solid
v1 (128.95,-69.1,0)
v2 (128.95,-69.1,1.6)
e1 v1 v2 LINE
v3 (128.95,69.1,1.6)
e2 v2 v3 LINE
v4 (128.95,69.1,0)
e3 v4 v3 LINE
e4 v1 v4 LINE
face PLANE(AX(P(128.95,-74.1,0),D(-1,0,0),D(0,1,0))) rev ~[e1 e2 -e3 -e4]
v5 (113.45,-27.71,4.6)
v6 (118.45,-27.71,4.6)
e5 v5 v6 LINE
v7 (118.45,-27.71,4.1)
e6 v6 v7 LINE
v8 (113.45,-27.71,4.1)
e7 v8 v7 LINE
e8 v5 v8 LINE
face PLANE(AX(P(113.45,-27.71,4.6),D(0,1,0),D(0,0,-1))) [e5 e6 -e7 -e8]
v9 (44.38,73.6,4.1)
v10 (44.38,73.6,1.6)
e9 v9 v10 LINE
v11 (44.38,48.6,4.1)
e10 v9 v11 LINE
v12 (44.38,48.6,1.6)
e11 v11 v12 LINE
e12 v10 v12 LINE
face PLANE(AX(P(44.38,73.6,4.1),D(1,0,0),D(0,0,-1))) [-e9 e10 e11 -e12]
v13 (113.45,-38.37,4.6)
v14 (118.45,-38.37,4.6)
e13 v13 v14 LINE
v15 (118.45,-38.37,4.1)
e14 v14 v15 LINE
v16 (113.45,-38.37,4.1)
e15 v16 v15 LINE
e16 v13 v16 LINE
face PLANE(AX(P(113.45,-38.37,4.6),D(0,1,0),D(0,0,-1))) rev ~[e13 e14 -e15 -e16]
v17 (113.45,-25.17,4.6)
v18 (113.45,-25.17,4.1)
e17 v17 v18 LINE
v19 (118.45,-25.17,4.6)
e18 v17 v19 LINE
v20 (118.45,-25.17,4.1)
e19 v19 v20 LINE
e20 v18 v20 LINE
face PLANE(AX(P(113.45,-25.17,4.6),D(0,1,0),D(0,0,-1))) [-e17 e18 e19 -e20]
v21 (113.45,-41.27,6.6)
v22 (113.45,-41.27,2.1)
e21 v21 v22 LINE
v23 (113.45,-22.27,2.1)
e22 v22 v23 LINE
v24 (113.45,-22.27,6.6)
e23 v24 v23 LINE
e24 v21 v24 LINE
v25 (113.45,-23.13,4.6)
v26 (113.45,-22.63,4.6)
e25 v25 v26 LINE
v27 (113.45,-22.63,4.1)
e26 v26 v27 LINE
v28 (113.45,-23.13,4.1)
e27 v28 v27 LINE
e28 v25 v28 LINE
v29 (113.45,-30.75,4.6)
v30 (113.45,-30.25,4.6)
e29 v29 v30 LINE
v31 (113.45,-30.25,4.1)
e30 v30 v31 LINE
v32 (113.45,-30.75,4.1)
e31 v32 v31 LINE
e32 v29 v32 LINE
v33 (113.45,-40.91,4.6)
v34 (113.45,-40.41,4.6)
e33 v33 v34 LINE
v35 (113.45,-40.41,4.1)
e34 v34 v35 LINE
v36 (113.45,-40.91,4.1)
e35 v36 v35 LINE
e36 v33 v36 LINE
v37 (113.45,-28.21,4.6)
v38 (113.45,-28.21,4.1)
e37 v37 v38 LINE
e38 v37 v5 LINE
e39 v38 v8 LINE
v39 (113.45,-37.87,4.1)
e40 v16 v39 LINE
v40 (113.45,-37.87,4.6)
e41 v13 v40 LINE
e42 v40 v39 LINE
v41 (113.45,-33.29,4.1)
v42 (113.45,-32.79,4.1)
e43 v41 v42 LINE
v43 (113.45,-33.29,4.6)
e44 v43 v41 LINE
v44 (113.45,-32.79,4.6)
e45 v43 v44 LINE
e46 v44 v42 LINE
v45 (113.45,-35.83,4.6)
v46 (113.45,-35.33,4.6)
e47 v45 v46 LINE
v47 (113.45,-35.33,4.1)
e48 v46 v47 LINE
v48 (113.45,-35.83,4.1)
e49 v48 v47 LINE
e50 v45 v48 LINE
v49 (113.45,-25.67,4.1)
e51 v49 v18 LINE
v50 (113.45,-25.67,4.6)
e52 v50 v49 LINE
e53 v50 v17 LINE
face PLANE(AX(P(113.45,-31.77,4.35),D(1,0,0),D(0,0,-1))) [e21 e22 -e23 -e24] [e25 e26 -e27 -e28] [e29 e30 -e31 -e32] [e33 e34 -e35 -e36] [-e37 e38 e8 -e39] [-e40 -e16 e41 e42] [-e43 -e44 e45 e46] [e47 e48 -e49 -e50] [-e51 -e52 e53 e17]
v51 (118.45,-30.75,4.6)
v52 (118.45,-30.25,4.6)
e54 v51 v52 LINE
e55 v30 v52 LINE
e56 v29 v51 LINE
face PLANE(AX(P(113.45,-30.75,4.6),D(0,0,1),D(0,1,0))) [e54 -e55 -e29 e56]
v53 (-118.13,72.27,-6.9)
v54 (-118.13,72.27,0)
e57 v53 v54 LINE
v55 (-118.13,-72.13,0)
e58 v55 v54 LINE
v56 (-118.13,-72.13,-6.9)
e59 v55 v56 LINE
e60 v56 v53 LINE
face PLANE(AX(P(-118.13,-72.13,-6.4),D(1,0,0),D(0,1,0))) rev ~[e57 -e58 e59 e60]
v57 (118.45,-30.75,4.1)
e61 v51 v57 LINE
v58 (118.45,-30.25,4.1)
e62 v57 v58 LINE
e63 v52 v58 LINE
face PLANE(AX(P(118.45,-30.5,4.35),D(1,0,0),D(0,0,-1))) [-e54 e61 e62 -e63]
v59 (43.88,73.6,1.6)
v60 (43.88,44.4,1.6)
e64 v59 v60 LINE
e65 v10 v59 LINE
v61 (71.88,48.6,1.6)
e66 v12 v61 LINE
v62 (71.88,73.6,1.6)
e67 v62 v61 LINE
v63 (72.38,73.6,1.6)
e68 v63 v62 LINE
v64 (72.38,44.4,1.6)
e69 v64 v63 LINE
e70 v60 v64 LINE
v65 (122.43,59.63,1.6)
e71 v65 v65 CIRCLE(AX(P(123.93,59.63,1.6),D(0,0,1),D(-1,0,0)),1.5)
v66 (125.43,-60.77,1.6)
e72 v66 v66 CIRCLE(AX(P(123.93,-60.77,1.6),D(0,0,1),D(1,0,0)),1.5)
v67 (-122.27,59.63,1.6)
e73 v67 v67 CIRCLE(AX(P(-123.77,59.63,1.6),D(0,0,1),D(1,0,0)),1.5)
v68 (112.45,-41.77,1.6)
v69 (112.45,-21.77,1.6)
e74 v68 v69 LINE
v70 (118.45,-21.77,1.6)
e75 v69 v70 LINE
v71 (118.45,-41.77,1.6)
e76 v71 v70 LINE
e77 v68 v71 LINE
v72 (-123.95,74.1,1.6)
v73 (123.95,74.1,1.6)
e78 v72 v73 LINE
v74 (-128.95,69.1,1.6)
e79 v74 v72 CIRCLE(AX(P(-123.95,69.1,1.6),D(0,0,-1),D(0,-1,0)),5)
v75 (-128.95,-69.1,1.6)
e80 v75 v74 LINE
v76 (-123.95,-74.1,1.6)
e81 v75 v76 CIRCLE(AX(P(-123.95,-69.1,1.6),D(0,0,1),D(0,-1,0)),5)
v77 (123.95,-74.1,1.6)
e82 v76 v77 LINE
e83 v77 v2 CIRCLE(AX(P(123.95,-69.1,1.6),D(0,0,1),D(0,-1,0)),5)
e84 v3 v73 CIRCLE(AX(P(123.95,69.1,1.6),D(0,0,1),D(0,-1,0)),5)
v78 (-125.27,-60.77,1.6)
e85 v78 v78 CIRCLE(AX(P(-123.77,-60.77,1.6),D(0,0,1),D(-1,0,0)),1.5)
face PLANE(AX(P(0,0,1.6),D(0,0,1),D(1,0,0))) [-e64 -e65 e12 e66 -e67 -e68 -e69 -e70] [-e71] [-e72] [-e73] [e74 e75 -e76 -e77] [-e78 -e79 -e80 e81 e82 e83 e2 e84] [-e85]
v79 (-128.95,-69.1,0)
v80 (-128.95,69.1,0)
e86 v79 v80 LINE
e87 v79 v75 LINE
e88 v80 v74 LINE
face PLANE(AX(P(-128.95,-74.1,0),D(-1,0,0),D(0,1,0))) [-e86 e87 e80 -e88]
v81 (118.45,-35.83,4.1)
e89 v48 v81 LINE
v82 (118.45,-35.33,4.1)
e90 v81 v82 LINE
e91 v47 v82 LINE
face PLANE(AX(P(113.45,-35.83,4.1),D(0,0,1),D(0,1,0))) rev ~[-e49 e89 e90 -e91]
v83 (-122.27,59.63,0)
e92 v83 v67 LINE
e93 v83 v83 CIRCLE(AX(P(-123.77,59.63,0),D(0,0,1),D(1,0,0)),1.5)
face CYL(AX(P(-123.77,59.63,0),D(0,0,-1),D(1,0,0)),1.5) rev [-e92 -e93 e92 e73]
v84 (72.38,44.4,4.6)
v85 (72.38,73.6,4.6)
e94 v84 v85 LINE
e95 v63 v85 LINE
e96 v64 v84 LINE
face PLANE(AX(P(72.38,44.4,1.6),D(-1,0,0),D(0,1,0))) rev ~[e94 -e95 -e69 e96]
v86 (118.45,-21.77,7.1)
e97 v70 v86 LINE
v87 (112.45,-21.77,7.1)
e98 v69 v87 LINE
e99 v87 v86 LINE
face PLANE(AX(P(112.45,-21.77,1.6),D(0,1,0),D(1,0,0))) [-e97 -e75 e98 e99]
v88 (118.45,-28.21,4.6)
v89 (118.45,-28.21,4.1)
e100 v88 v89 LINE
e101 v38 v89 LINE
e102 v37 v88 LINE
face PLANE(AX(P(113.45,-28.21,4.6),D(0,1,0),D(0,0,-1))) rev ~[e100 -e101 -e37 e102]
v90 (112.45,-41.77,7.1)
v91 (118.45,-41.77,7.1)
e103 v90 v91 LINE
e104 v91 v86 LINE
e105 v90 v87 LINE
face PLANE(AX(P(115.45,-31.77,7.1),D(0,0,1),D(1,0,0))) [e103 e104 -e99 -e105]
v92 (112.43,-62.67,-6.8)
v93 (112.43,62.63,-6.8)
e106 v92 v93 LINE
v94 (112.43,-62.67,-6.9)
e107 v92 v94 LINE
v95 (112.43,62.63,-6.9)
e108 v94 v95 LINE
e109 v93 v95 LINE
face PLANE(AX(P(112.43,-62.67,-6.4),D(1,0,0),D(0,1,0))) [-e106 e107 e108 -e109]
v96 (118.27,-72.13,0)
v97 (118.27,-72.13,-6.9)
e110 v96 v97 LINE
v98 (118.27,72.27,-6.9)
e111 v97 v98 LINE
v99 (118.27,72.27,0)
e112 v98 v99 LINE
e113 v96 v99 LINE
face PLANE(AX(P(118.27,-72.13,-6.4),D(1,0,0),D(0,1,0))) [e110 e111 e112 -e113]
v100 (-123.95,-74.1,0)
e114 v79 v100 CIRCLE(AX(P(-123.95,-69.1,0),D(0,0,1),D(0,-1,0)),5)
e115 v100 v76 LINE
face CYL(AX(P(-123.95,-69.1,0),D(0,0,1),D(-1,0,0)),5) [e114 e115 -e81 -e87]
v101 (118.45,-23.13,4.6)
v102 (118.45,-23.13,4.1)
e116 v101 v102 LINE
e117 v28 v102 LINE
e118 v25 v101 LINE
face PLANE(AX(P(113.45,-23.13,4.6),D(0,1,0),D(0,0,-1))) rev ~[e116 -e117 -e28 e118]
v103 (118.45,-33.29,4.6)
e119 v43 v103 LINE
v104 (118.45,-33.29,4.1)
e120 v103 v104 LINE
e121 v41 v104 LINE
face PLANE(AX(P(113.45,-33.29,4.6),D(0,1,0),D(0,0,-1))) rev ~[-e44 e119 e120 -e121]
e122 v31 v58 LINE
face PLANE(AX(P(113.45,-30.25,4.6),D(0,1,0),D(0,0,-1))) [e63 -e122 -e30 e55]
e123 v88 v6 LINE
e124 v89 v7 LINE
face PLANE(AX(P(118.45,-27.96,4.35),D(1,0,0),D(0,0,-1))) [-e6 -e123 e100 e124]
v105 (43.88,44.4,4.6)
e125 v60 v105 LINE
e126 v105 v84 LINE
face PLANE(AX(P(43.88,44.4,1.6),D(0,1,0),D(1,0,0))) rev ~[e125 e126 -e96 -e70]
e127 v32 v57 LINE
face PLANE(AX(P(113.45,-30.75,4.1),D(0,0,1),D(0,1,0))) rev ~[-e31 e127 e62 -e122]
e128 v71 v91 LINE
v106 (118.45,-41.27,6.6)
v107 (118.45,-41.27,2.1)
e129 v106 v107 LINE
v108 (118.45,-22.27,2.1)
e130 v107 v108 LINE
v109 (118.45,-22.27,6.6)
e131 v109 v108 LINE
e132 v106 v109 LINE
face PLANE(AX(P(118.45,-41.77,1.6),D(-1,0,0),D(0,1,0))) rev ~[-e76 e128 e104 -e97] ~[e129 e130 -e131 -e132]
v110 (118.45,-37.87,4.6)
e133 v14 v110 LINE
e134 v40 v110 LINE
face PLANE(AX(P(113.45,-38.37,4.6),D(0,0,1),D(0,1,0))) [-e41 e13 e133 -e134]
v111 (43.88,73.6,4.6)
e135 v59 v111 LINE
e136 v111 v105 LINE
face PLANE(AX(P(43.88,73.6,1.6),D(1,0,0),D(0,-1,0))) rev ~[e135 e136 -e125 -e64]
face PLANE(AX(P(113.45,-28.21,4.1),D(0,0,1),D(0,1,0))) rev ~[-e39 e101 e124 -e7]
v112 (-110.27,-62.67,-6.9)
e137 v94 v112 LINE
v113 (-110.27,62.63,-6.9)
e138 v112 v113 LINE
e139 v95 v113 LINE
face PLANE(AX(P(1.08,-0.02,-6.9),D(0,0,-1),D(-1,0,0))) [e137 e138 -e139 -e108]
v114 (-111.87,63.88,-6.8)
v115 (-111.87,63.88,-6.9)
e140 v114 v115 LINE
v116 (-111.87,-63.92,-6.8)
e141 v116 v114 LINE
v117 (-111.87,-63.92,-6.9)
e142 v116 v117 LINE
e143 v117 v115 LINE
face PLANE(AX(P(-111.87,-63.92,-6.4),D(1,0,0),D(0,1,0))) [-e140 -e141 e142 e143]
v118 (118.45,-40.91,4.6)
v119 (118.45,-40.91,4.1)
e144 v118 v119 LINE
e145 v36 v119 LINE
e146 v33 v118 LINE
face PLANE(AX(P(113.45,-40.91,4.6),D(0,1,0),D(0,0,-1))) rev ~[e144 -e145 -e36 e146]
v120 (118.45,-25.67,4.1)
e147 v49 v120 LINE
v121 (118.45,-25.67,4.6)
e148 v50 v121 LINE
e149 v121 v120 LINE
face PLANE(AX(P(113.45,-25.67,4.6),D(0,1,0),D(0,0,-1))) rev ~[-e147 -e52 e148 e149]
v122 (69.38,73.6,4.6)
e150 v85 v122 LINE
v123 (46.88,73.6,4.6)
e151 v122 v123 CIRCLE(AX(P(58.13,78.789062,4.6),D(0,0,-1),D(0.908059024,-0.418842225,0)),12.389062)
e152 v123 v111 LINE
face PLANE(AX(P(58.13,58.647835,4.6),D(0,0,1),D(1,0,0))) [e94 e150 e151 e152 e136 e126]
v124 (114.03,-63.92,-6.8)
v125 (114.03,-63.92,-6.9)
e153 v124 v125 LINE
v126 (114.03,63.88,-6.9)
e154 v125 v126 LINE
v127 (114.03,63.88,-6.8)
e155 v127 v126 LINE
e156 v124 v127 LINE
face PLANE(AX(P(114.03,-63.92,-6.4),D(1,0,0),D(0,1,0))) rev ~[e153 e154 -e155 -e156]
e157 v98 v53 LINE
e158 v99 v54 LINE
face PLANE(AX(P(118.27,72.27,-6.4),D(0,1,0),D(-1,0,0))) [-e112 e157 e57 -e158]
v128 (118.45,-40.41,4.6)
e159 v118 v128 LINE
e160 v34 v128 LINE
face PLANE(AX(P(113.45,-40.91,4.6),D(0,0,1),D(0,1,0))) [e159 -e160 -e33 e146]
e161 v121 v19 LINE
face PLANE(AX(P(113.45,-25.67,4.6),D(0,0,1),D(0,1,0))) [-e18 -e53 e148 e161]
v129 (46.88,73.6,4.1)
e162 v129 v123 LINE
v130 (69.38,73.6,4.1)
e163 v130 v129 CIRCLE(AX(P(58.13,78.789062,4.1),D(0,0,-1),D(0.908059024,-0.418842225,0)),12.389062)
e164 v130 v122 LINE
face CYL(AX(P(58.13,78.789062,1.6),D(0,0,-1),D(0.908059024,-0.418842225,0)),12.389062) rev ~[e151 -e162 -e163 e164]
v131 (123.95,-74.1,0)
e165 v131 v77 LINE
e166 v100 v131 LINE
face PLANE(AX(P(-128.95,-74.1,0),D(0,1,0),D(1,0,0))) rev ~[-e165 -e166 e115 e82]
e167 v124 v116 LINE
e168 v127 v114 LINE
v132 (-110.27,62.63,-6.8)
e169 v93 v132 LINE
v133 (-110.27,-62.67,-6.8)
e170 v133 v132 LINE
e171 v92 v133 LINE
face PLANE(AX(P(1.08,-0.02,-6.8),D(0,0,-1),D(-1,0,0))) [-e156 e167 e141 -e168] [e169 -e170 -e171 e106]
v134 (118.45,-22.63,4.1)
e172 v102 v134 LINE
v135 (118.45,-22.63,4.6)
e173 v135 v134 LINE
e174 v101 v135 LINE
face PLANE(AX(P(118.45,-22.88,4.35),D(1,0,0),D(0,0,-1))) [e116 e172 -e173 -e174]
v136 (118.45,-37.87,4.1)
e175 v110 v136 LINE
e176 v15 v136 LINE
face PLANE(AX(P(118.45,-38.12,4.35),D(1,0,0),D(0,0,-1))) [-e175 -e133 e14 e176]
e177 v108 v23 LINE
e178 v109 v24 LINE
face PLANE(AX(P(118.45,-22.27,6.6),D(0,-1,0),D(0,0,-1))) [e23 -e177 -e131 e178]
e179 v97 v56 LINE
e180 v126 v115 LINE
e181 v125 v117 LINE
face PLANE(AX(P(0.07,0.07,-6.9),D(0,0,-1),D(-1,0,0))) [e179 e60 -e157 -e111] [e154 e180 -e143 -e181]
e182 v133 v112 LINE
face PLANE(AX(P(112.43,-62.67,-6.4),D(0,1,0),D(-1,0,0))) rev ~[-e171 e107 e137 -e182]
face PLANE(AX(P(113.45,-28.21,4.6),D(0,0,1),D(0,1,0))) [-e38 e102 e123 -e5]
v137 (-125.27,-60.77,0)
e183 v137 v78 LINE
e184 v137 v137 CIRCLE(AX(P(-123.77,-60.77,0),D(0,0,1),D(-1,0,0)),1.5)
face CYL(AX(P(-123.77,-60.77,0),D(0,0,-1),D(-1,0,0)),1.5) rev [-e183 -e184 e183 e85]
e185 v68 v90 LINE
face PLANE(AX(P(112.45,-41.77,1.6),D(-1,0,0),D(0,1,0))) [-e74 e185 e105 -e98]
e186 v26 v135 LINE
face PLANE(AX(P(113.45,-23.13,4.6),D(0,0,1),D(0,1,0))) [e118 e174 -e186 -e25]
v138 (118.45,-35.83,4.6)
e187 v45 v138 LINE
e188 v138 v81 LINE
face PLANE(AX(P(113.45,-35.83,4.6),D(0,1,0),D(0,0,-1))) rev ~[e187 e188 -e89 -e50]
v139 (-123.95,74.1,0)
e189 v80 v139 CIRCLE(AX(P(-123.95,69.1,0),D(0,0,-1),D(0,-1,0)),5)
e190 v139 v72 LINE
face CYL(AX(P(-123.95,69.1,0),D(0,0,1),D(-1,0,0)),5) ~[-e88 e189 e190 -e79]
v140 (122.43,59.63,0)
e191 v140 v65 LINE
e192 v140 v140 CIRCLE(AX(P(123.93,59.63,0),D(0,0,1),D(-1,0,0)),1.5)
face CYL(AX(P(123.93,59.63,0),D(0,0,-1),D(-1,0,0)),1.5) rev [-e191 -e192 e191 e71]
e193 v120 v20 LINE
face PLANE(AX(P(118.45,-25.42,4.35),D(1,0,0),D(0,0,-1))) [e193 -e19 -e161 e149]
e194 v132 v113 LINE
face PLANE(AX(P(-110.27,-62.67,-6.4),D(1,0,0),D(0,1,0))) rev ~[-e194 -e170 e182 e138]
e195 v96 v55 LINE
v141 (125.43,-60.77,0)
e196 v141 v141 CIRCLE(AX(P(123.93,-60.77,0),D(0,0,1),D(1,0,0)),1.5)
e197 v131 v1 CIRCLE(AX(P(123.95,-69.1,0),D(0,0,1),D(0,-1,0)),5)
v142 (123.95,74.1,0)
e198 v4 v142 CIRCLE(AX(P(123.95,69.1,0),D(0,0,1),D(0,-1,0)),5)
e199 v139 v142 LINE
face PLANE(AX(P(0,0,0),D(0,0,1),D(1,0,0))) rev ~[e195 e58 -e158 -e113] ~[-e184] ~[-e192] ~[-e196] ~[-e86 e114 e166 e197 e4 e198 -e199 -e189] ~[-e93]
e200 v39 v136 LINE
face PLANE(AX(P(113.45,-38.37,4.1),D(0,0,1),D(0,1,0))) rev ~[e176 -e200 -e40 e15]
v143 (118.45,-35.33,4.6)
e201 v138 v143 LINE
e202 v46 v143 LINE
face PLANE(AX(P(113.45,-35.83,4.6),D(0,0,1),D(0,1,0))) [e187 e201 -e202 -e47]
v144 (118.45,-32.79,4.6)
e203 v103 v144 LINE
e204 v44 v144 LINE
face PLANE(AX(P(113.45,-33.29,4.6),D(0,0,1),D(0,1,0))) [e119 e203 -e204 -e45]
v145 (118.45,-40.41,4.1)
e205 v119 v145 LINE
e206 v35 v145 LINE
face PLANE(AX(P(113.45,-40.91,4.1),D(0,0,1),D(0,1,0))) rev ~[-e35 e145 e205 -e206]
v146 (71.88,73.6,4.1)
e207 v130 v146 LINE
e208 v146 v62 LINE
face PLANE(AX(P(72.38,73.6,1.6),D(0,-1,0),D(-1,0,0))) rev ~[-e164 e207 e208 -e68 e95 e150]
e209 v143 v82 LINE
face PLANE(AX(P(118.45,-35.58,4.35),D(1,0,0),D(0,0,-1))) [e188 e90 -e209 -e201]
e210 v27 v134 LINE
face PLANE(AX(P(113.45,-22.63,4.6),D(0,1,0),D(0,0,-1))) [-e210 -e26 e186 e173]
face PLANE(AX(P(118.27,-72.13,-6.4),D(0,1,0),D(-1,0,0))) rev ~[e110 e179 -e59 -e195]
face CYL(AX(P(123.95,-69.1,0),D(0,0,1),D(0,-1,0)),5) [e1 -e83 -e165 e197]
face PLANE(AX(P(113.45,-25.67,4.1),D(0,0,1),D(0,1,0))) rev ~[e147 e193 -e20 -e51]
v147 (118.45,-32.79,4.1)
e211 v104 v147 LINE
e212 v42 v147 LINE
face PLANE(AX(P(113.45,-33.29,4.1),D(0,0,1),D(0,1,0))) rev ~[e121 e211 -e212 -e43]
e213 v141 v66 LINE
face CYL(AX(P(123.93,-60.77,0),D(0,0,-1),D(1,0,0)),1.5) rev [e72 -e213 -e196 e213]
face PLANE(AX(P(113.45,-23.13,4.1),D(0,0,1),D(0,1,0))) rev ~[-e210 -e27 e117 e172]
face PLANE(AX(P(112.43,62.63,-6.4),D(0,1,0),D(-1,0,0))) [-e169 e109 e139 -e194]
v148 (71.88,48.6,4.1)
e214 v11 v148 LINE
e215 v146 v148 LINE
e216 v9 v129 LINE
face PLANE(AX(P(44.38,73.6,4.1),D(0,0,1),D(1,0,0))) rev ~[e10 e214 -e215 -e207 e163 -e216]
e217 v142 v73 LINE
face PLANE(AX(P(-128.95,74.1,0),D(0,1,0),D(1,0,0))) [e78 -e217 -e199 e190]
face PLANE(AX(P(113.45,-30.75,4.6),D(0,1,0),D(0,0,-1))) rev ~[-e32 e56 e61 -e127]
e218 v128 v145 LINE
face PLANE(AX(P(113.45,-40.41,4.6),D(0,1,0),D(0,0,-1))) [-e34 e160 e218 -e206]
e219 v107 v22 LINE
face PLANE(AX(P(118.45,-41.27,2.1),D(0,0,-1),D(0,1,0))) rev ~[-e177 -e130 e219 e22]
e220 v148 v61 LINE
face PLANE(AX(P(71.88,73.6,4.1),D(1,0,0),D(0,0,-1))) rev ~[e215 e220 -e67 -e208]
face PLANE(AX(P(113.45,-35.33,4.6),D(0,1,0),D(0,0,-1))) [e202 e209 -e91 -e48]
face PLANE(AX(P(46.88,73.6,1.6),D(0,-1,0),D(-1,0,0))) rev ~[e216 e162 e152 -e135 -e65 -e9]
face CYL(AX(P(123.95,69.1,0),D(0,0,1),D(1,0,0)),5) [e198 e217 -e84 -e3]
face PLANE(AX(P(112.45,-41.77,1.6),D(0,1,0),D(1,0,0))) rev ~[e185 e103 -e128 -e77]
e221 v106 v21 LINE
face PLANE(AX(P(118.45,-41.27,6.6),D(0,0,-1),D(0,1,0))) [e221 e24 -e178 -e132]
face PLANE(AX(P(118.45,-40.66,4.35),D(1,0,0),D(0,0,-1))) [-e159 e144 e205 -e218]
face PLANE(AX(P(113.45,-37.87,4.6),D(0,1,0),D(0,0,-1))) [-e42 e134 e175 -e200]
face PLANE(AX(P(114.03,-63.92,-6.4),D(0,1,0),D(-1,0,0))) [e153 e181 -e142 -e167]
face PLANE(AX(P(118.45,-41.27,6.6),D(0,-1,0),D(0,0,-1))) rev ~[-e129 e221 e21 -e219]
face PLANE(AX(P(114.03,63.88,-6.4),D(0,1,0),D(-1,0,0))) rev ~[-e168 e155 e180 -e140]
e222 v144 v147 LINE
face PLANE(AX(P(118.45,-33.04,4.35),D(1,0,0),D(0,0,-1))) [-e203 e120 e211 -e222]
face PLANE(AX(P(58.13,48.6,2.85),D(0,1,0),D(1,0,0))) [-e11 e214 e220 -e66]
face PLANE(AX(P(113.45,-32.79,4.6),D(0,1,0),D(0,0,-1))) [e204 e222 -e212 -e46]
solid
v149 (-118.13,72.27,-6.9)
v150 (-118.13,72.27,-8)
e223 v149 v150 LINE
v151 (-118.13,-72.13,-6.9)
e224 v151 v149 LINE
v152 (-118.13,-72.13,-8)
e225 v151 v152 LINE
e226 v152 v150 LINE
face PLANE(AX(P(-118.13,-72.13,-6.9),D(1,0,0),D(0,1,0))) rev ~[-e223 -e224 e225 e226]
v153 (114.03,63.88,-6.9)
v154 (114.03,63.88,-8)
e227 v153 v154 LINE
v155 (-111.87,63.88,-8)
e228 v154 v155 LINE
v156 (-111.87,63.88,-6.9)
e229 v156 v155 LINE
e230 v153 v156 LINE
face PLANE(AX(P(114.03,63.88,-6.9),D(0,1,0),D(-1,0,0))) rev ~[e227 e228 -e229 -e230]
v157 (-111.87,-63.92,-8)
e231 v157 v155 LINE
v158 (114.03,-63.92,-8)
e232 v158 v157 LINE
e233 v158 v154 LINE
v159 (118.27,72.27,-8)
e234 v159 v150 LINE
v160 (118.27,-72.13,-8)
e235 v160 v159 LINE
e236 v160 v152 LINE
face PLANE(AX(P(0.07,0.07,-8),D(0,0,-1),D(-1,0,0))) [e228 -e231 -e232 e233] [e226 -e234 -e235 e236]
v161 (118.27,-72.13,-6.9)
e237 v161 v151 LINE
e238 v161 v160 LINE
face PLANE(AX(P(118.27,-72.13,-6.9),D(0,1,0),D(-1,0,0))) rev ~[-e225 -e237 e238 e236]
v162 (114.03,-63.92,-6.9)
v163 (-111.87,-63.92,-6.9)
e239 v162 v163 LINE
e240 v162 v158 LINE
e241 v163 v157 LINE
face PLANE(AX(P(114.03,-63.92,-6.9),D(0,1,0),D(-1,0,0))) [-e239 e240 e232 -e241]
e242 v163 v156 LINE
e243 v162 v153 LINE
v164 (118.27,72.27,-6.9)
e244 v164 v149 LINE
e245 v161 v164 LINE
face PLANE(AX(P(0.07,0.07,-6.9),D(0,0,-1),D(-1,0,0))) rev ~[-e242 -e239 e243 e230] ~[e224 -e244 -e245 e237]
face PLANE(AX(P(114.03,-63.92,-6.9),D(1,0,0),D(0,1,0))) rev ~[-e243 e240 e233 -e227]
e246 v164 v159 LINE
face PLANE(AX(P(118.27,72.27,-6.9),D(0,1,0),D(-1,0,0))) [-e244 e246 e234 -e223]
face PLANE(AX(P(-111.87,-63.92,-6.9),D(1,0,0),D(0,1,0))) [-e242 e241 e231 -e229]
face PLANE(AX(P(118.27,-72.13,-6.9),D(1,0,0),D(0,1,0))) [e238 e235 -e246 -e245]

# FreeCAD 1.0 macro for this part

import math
import FreeCAD as App
import Part
import Sketcher
from FreeCAD import Vector


def edges_at(feature, points):
    """Names of the edges that pass closest to the given points."""
    edges = feature.Shape.Edges
    near = lambda p: min(range(len(edges)), key=lambda i: edges[i].distToShape(Part.Vertex(*p))[0])
    return sorted({f"Edge{near(p) + 1}" for p in points})

doc = App.newDocument("Part")
body = doc.addObject("PartDesign::Body", "Body")

# Sketch on XY plane
sketch1 = body.newObject("Sketcher::SketchObject", "Sketch")
sketch1.AttachmentSupport = (doc.getObject("XY_Plane"), [""])
sketch1.MapMode = "FlatFace"
sketch1.addGeometry([
    Part.LineSegment(Vector(-128.95, 74.1, 0), Vector(-128.95, -74.1, 0)),
    Part.LineSegment(Vector(-128.95, -74.1, 0), Vector(128.95, -74.1, 0)),
    Part.LineSegment(Vector(128.95, -74.1, 0), Vector(128.95, 74.1, 0)),
    Part.LineSegment(Vector(128.95, 74.1, 0), Vector(-128.95, 74.1, 0)),
], False)
sketch1.addConstraint([
    Sketcher.Constraint("Coincident", 0, 2, 1, 1),
    Sketcher.Constraint("Coincident", 1, 2, 2, 1),
    Sketcher.Constraint("Coincident", 2, 2, 3, 1),
    Sketcher.Constraint("Coincident", 3, 2, 0, 1),
    Sketcher.Constraint("Vertical", 0),
    Sketcher.Constraint("Horizontal", 1),
    Sketcher.Constraint("Vertical", 2),
    Sketcher.Constraint("Horizontal", 3),
    Sketcher.Constraint("Symmetric", 0, 2, 2, 2, -1, 1),
    Sketcher.Constraint("DistanceX", 1, 1, 1, 2, 257.9),
    Sketcher.Constraint("DistanceY", 0, 2, 0, 1, 148.2),
])
pad1 = body.newObject("PartDesign::Pad", "Pad")
pad1.Profile = sketch1
pad1.Length = 1.6
doc.recompute()

fillet = body.newObject("PartDesign::Fillet", "Fillet")
fillet.Base = (pad1, edges_at(pad1, [
    (-128.95, 74.1, 0.8),
    (128.95, 74.1, 0.8),
    (128.95, -74.1, 0.8),
    (-128.95, -74.1, 0.8),
]))
fillet.Radius = 5

# Sketch on XY plane
sketch2 = body.newObject("Sketcher::SketchObject", "Sketch001")
sketch2.AttachmentSupport = (doc.getObject("XY_Plane"), [""])
sketch2.MapMode = "FlatFace"
sketch2.addGeometry([
    Part.Circle(Vector(-123.77, 59.63, 0), Vector(0, 0, 1), 1.5),
    Part.Circle(Vector(123.93, 59.63, 0), Vector(0, 0, 1), 1.5),
    Part.Circle(Vector(123.93, -60.77, 0), Vector(0, 0, 1), 1.5),
    Part.Circle(Vector(-123.77, -60.77, 0), Vector(0, 0, 1), 1.5),
], False)
sketch2.addConstraint([
    Sketcher.Constraint("Equal", 0, 1),
    Sketcher.Constraint("Equal", 1, 2),
    Sketcher.Constraint("Equal", 2, 3),
    Sketcher.Constraint("Horizontal", 0, 3, 1, 3),
    Sketcher.Constraint("Horizontal", 2, 3, 3, 3),
    Sketcher.Constraint("Vertical", 1, 3, 2, 3),
    Sketcher.Constraint("Vertical", 0, 3, 3, 3),
    Sketcher.Constraint("Diameter", 0, 3.0),
    Sketcher.Constraint("DistanceX", 0, 3, 1, 3, 247.7),
    Sketcher.Constraint("DistanceY", 2, 3, 1, 3, 120.4),
    Sketcher.Constraint("DistanceX", 0, 3, -1, 1, 123.77),
    Sketcher.Constraint("DistanceY", -1, 1, 0, 3, 59.63),
])
pocket1 = body.newObject("PartDesign::Pocket", "Pocket")
pocket1.Profile = sketch2
pocket1.Length = 1.6
pocket1.Reversed = True

# Sketch on XY plane
sketch3 = body.newObject("Sketcher::SketchObject", "Sketch002")
sketch3.AttachmentSupport = (doc.getObject("XY_Plane"), [""])
sketch3.MapMode = "FlatFace"
sketch3.addGeometry([
    Part.LineSegment(Vector(118.27, 72.27, 0), Vector(118.27, -72.13, 0)),
    Part.LineSegment(Vector(118.27, -72.13, 0), Vector(-118.13, -72.13, 0)),
    Part.LineSegment(Vector(-118.13, -72.13, 0), Vector(-118.13, 72.27, 0)),
    Part.LineSegment(Vector(-118.13, 72.27, 0), Vector(118.27, 72.27, 0)),
], False)
sketch3.addConstraint([
    Sketcher.Constraint("Coincident", 0, 2, 1, 1),
    Sketcher.Constraint("Coincident", 1, 2, 2, 1),
    Sketcher.Constraint("Coincident", 2, 2, 3, 1),
    Sketcher.Constraint("Coincident", 3, 2, 0, 1),
    Sketcher.Constraint("Vertical", 0),
    Sketcher.Constraint("Horizontal", 1),
    Sketcher.Constraint("Vertical", 2),
    Sketcher.Constraint("Horizontal", 3),
    Sketcher.Constraint("DistanceX", 1, 2, 1, 1, 236.4),
    Sketcher.Constraint("DistanceY", 0, 2, 0, 1, 144.4),
    Sketcher.Constraint("DistanceX", -1, 1, 0, 2, 118.27),
    Sketcher.Constraint("DistanceY", 0, 2, -1, 1, 72.13),
])
pad2 = body.newObject("PartDesign::Pad", "Pad001")
pad2.Profile = sketch3
pad2.Length = 6.4
pad2.Reversed = True

# Sketch on XY plane
sketch4 = body.newObject("Sketcher::SketchObject", "Sketch003")
sketch4.AttachmentSupport = (doc.getObject("XY_Plane"), [""])
sketch4.MapMode = "FlatFace"
sketch4.AttachmentOffset = App.Placement(Vector(0, 0, -6.4), App.Rotation())
sketch4.addGeometry([
    Part.LineSegment(Vector(118.27, 72.27, 0), Vector(118.27, -72.13, 0)),  # 0
    Part.LineSegment(Vector(118.27, -72.13, 0), Vector(-118.13, -72.13, 0)),  # 1
    Part.LineSegment(Vector(-118.13, -72.13, 0), Vector(-118.13, 72.27, 0)),  # 2
    Part.LineSegment(Vector(-118.13, 72.27, 0), Vector(118.27, 72.27, 0)),  # 3
    Part.LineSegment(Vector(-111.87, -63.92, 0), Vector(114.03, -63.92, 0)),  # 4
    Part.LineSegment(Vector(114.03, -63.92, 0), Vector(114.03, 63.88, 0)),  # 5
    Part.LineSegment(Vector(114.03, 63.88, 0), Vector(-111.87, 63.88, 0)),  # 6
    Part.LineSegment(Vector(-111.87, 63.88, 0), Vector(-111.87, -63.92, 0)),  # 7
], False)
sketch4.addConstraint([
    Sketcher.Constraint("Coincident", 0, 2, 1, 1),
    Sketcher.Constraint("Coincident", 1, 2, 2, 1),
    Sketcher.Constraint("Coincident", 2, 2, 3, 1),
    Sketcher.Constraint("Coincident", 3, 2, 0, 1),
    Sketcher.Constraint("Coincident", 4, 2, 5, 1),
    Sketcher.Constraint("Coincident", 5, 2, 6, 1),
    Sketcher.Constraint("Coincident", 6, 2, 7, 1),
    Sketcher.Constraint("Coincident", 7, 2, 4, 1),
    Sketcher.Constraint("Vertical", 0),
    Sketcher.Constraint("Horizontal", 1),
    Sketcher.Constraint("Vertical", 2),
    Sketcher.Constraint("Horizontal", 3),
    Sketcher.Constraint("Horizontal", 4),
    Sketcher.Constraint("Vertical", 5),
    Sketcher.Constraint("Horizontal", 6),
    Sketcher.Constraint("Vertical", 7),
    Sketcher.Constraint("DistanceX", 1, 2, 1, 1, 236.4),
    Sketcher.Constraint("DistanceX", 4, 1, 4, 2, 225.9),
    Sketcher.Constraint("DistanceY", 0, 2, 0, 1, 144.4),
    Sketcher.Constraint("DistanceY", 5, 1, 5, 2, 127.8),
    Sketcher.Constraint("DistanceX", -1, 1, 0, 2, 118.27),
    Sketcher.Constraint("DistanceY", 0, 2, -1, 1, 72.13),
    Sketcher.Constraint("DistanceX", -1, 1, 4, 2, 114.03),
    Sketcher.Constraint("DistanceY", 4, 2, -1, 1, 63.92),
])
pad3 = body.newObject("PartDesign::Pad", "Pad002")
pad3.Profile = sketch4
pad3.Length = 0.5
pad3.Reversed = True

# Sketch on XY plane
sketch5 = body.newObject("Sketcher::SketchObject", "Sketch004")
sketch5.AttachmentSupport = (doc.getObject("XY_Plane"), [""])
sketch5.MapMode = "FlatFace"
sketch5.AttachmentOffset = App.Placement(Vector(0, 0, -6.4), App.Rotation())
sketch5.addGeometry([
    Part.LineSegment(Vector(112.43, 62.63, 0), Vector(112.43, -62.67, 0)),
    Part.LineSegment(Vector(112.43, -62.67, 0), Vector(-110.27, -62.67, 0)),
    Part.LineSegment(Vector(-110.27, -62.67, 0), Vector(-110.27, 62.63, 0)),
    Part.LineSegment(Vector(-110.27, 62.63, 0), Vector(112.43, 62.63, 0)),
], False)
sketch5.addConstraint([
    Sketcher.Constraint("Coincident", 0, 2, 1, 1),
    Sketcher.Constraint("Coincident", 1, 2, 2, 1),
    Sketcher.Constraint("Coincident", 2, 2, 3, 1),
    Sketcher.Constraint("Coincident", 3, 2, 0, 1),
    Sketcher.Constraint("Vertical", 0),
    Sketcher.Constraint("Horizontal", 1),
    Sketcher.Constraint("Vertical", 2),
    Sketcher.Constraint("Horizontal", 3),
    Sketcher.Constraint("DistanceX", 1, 2, 1, 1, 222.7),
    Sketcher.Constraint("DistanceY", 0, 2, 0, 1, 125.3),
    Sketcher.Constraint("DistanceX", -1, 1, 0, 2, 112.43),
    Sketcher.Constraint("DistanceY", 0, 2, -1, 1, 62.67),
])
pad4 = body.newObject("PartDesign::Pad", "Pad003")
pad4.Profile = sketch5
pad4.Length = 0.5
pad4.Reversed = True

# Sketch on XY plane
sketch6 = body.newObject("Sketcher::SketchObject", "Sketch005")
sketch6.AttachmentSupport = (doc.getObject("XY_Plane"), [""])
sketch6.MapMode = "FlatFace"
sketch6.AttachmentOffset = App.Placement(Vector(0, 0, -6.4), App.Rotation())
sketch6.addGeometry([
    Part.LineSegment(Vector(114.03, 63.88, 0), Vector(114.03, -63.92, 0)),  # 0
    Part.LineSegment(Vector(114.03, -63.92, 0), Vector(-111.87, -63.92, 0)),  # 1
    Part.LineSegment(Vector(-111.87, -63.92, 0), Vector(-111.87, 63.88, 0)),  # 2
    Part.LineSegment(Vector(-111.87, 63.88, 0), Vector(114.03, 63.88, 0)),  # 3
    Part.LineSegment(Vector(-110.27, -62.67, 0), Vector(112.43, -62.67, 0)),  # 4
    Part.LineSegment(Vector(112.43, -62.67, 0), Vector(112.43, 62.63, 0)),  # 5
    Part.LineSegment(Vector(112.43, 62.63, 0), Vector(-110.27, 62.63, 0)),  # 6
    Part.LineSegment(Vector(-110.27, 62.63, 0), Vector(-110.27, -62.67, 0)),  # 7
], False)
sketch6.addConstraint([
    Sketcher.Constraint("Coincident", 0, 2, 1, 1),
    Sketcher.Constraint("Coincident", 1, 2, 2, 1),
    Sketcher.Constraint("Coincident", 2, 2, 3, 1),
    Sketcher.Constraint("Coincident", 3, 2, 0, 1),
    Sketcher.Constraint("Coincident", 4, 2, 5, 1),
    Sketcher.Constraint("Coincident", 5, 2, 6, 1),
    Sketcher.Constraint("Coincident", 6, 2, 7, 1),
    Sketcher.Constraint("Coincident", 7, 2, 4, 1),
    Sketcher.Constraint("Vertical", 0),
    Sketcher.Constraint("Horizontal", 1),
    Sketcher.Constraint("Vertical", 2),
    Sketcher.Constraint("Horizontal", 3),
    Sketcher.Constraint("Horizontal", 4),
    Sketcher.Constraint("Vertical", 5),
    Sketcher.Constraint("Horizontal", 6),
    Sketcher.Constraint("Vertical", 7),
    Sketcher.Constraint("DistanceX", 1, 2, 1, 1, 225.9),
    Sketcher.Constraint("DistanceX", 4, 1, 4, 2, 222.7),
    Sketcher.Constraint("DistanceY", 0, 2, 0, 1, 127.8),
    Sketcher.Constraint("DistanceY", 5, 1, 5, 2, 125.3),
    Sketcher.Constraint("DistanceX", 4, 2, 0, 2, 1.6),
    Sketcher.Constraint("DistanceX", -1, 1, 0, 2, 114.03),
    Sketcher.Constraint("DistanceY", 0, 2, -1, 1, 63.92),
    Sketcher.Constraint("DistanceY", 4, 2, -1, 1, 62.67),
])
pad5 = body.newObject("PartDesign::Pad", "Pad004")
pad5.Profile = sketch6
pad5.Length = 0.4
pad5.Reversed = True

# Sketch on XY plane
sketch7 = body.newObject("Sketcher::SketchObject", "Sketch006")
sketch7.AttachmentSupport = (doc.getObject("XY_Plane"), [""])
sketch7.MapMode = "FlatFace"
sketch7.AttachmentOffset = App.Placement(Vector(0, 0, 1.6), App.Rotation())
sketch7.addGeometry([
    Part.LineSegment(Vector(112.45, -21.77, 0), Vector(112.45, -41.77, 0)),
    Part.LineSegment(Vector(112.45, -41.77, 0), Vector(118.45, -41.77, 0)),
    Part.LineSegment(Vector(118.45, -41.77, 0), Vector(118.45, -21.77, 0)),
    Part.LineSegment(Vector(118.45, -21.77, 0), Vector(112.45, -21.77, 0)),
], False)
sketch7.addConstraint([
    Sketcher.Constraint("Coincident", 0, 2, 1, 1),
    Sketcher.Constraint("Coincident", 1, 2, 2, 1),
    Sketcher.Constraint("Coincident", 2, 2, 3, 1),
    Sketcher.Constraint("Coincident", 3, 2, 0, 1),
    Sketcher.Constraint("Vertical", 0),
    Sketcher.Constraint("Horizontal", 1),
    Sketcher.Constraint("Vertical", 2),
    Sketcher.Constraint("Horizontal", 3),
    Sketcher.Constraint("DistanceX", 1, 1, 1, 2, 6.0),
    Sketcher.Constraint("DistanceY", 0, 2, 0, 1, 20.0),
    Sketcher.Constraint("DistanceX", -1, 1, 0, 2, 112.45),
    Sketcher.Constraint("DistanceY", 0, 2, -1, 1, 41.77),
])
pad6 = body.newObject("PartDesign::Pad", "Pad005")
pad6.Profile = sketch7
pad6.Length = 5.5

# Sketch on YZ plane
sketch8 = body.newObject("Sketcher::SketchObject", "Sketch007")
sketch8.AttachmentSupport = (doc.getObject("YZ_Plane"), [""])
sketch8.MapMode = "FlatFace"
sketch8.AttachmentOffset = App.Placement(Vector(0, 0, 118.45), App.Rotation())
sketch8.addGeometry([
    Part.LineSegment(Vector(-22.27, 6.6, 0), Vector(-41.27, 6.6, 0)),
    Part.LineSegment(Vector(-41.27, 6.6, 0), Vector(-41.27, 2.1, 0)),
    Part.LineSegment(Vector(-41.27, 2.1, 0), Vector(-22.27, 2.1, 0)),
    Part.LineSegment(Vector(-22.27, 2.1, 0), Vector(-22.27, 6.6, 0)),
], False)
sketch8.addConstraint([
    Sketcher.Constraint("Coincident", 0, 2, 1, 1),
    Sketcher.Constraint("Coincident", 1, 2, 2, 1),
    Sketcher.Constraint("Coincident", 2, 2, 3, 1),
    Sketcher.Constraint("Coincident", 3, 2, 0, 1),
    Sketcher.Constraint("Horizontal", 0),
    Sketcher.Constraint("Vertical", 1),
    Sketcher.Constraint("Horizontal", 2),
    Sketcher.Constraint("Vertical", 3),
    Sketcher.Constraint("DistanceX", 0, 2, 0, 1, 19.0),
    Sketcher.Constraint("DistanceY", 1, 2, 1, 1, 4.5),
    Sketcher.Constraint("DistanceY", -1, 1, 0, 2, 6.6),
    Sketcher.Constraint("DistanceX", 0, 2, -1, 1, 41.27),
])
pocket2 = body.newObject("PartDesign::Pocket", "Pocket001")
pocket2.Profile = sketch8
pocket2.Length = 5

# Sketch on YZ plane
sketch9 = body.newObject("Sketcher::SketchObject", "Sketch008")
sketch9.AttachmentSupport = (doc.getObject("YZ_Plane"), [""])
sketch9.MapMode = "FlatFace"
sketch9.AttachmentOffset = App.Placement(Vector(0, 0, 113.45), App.Rotation())
sketch9.addGeometry([
    Part.LineSegment(Vector(-30.25, 4.6, 0), Vector(-30.75, 4.6, 0)),  # 0
    Part.LineSegment(Vector(-30.75, 4.6, 0), Vector(-30.75, 4.1, 0)),  # 1
    Part.LineSegment(Vector(-30.75, 4.1, 0), Vector(-30.25, 4.1, 0)),  # 2
    Part.LineSegment(Vector(-30.25, 4.1, 0), Vector(-30.25, 4.6, 0)),  # 3
    Part.LineSegment(Vector(-27.71, 4.6, 0), Vector(-28.21, 4.6, 0)),  # 4
    Part.LineSegment(Vector(-28.21, 4.6, 0), Vector(-28.21, 4.1, 0)),  # 5
    Part.LineSegment(Vector(-28.21, 4.1, 0), Vector(-27.71, 4.1, 0)),  # 6
    Part.LineSegment(Vector(-27.71, 4.1, 0), Vector(-27.71, 4.6, 0)),  # 7
    Part.LineSegment(Vector(-25.17, 4.6, 0), Vector(-25.67, 4.6, 0)),  # 8
    Part.LineSegment(Vector(-25.67, 4.6, 0), Vector(-25.67, 4.1, 0)),  # 9
    Part.LineSegment(Vector(-25.67, 4.1, 0), Vector(-25.17, 4.1, 0)),  # 10
    Part.LineSegment(Vector(-25.17, 4.1, 0), Vector(-25.17, 4.6, 0)),  # 11
    Part.LineSegment(Vector(-22.63, 4.6, 0), Vector(-23.13, 4.6, 0)),  # 12
    Part.LineSegment(Vector(-23.13, 4.6, 0), Vector(-23.13, 4.1, 0)),  # 13
    Part.LineSegment(Vector(-23.13, 4.1, 0), Vector(-22.63, 4.1, 0)),  # 14
    Part.LineSegment(Vector(-22.63, 4.1, 0), Vector(-22.63, 4.6, 0)),  # 15
    Part.LineSegment(Vector(-40.41, 4.6, 0), Vector(-40.91, 4.6, 0)),  # 16
    Part.LineSegment(Vector(-40.91, 4.6, 0), Vector(-40.91, 4.1, 0)),  # 17
    Part.LineSegment(Vector(-40.91, 4.1, 0), Vector(-40.41, 4.1, 0)),  # 18
    Part.LineSegment(Vector(-40.41, 4.1, 0), Vector(-40.41, 4.6, 0)),  # 19
    Part.LineSegment(Vector(-37.87, 4.6, 0), Vector(-38.37, 4.6, 0)),  # 20
    Part.LineSegment(Vector(-38.37, 4.6, 0), Vector(-38.37, 4.1, 0)),  # 21
    Part.LineSegment(Vector(-38.37, 4.1, 0), Vector(-37.87, 4.1, 0)),  # 22
    Part.LineSegment(Vector(-37.87, 4.1, 0), Vector(-37.87, 4.6, 0)),  # 23
    Part.LineSegment(Vector(-35.33, 4.6, 0), Vector(-35.83, 4.6, 0)),  # 24
    Part.LineSegment(Vector(-35.83, 4.6, 0), Vector(-35.83, 4.1, 0)),  # 25
    Part.LineSegment(Vector(-35.83, 4.1, 0), Vector(-35.33, 4.1, 0)),  # 26
    Part.LineSegment(Vector(-35.33, 4.1, 0), Vector(-35.33, 4.6, 0)),  # 27
    Part.LineSegment(Vector(-32.79, 4.6, 0), Vector(-33.29, 4.6, 0)),  # 28
    Part.LineSegment(Vector(-33.29, 4.6, 0), Vector(-33.29, 4.1, 0)),  # 29
    Part.LineSegment(Vector(-33.29, 4.1, 0), Vector(-32.79, 4.1, 0)),  # 30
    Part.LineSegment(Vector(-32.79, 4.1, 0), Vector(-32.79, 4.6, 0)),  # 31
], False)
sketch9.addConstraint([
    Sketcher.Constraint("Coincident", 0, 2, 1, 1),
    Sketcher.Constraint("Coincident", 1, 2, 2, 1),
    Sketcher.Constraint("Coincident", 2, 2, 3, 1),
    Sketcher.Constraint("Coincident", 3, 2, 0, 1),
    Sketcher.Constraint("Coincident", 4, 2, 5, 1),
    Sketcher.Constraint("Coincident", 5, 2, 6, 1),
    Sketcher.Constraint("Coincident", 6, 2, 7, 1),
    Sketcher.Constraint("Coincident", 7, 2, 4, 1),
    Sketcher.Constraint("Coincident", 8, 2, 9, 1),
    Sketcher.Constraint("Coincident", 9, 2, 10, 1),
    Sketcher.Constraint("Coincident", 10, 2, 11, 1),
    Sketcher.Constraint("Coincident", 11, 2, 8, 1),
    Sketcher.Constraint("Coincident", 12, 2, 13, 1),
    Sketcher.Constraint("Coincident", 13, 2, 14, 1),
    Sketcher.Constraint("Coincident", 14, 2, 15, 1),
    Sketcher.Constraint("Coincident", 15, 2, 12, 1),
    Sketcher.Constraint("Coincident", 16, 2, 17, 1),
    Sketcher.Constraint("Coincident", 17, 2, 18, 1),
    Sketcher.Constraint("Coincident", 18, 2, 19, 1),
    Sketcher.Constraint("Coincident", 19, 2, 16, 1),
    Sketcher.Constraint("Coincident", 20, 2, 21, 1),
    Sketcher.Constraint("Coincident", 21, 2, 22, 1),
    Sketcher.Constraint("Coincident", 22, 2, 23, 1),
    Sketcher.Constraint("Coincident", 23, 2, 20, 1),
    Sketcher.Constraint("Coincident", 24, 2, 25, 1),
    Sketcher.Constraint("Coincident", 25, 2, 26, 1),
    Sketcher.Constraint("Coincident", 26, 2, 27, 1),
    Sketcher.Constraint("Coincident", 27, 2, 24, 1),
    Sketcher.Constraint("Coincident", 28, 2, 29, 1),
    Sketcher.Constraint("Coincident", 29, 2, 30, 1),
    Sketcher.Constraint("Coincident", 30, 2, 31, 1),
    Sketcher.Constraint("Coincident", 31, 2, 28, 1),
    Sketcher.Constraint("Horizontal", 0),
    Sketcher.Constraint("Vertical", 1),
    Sketcher.Constraint("Horizontal", 2),
    Sketcher.Constraint("Vertical", 3),
    Sketcher.Constraint("Horizontal", 4),
    Sketcher.Constraint("Vertical", 5),
    Sketcher.Constraint("Horizontal", 6),
    Sketcher.Constraint("Vertical", 7),
    Sketcher.Constraint("Horizontal", 8),
    Sketcher.Constraint("Vertical", 9),
    Sketcher.Constraint("Horizontal", 10),
    Sketcher.Constraint("Vertical", 11),
    Sketcher.Constraint("Horizontal", 12),
    Sketcher.Constraint("Vertical", 13),
    Sketcher.Constraint("Horizontal", 14),
    Sketcher.Constraint("Vertical", 15),
    Sketcher.Constraint("Horizontal", 16),
    Sketcher.Constraint("Vertical", 17),
    Sketcher.Constraint("Horizontal", 18),
    Sketcher.Constraint("Vertical", 19),
    Sketcher.Constraint("Horizontal", 20),
    Sketcher.Constraint("Vertical", 21),
    Sketcher.Constraint("Horizontal", 22),
    Sketcher.Constraint("Vertical", 23),
    Sketcher.Constraint("Horizontal", 24),
    Sketcher.Constraint("Vertical", 25),
    Sketcher.Constraint("Horizontal", 26),
    Sketcher.Constraint("Vertical", 27),
    Sketcher.Constraint("Horizontal", 28),
    Sketcher.Constraint("Vertical", 29),
    Sketcher.Constraint("Horizontal", 30),
    Sketcher.Constraint("Vertical", 31),
    Sketcher.Constraint("Horizontal", 3, 2, 4, 2),
    Sketcher.Constraint("Horizontal", 2, 2, 5, 2),
    Sketcher.Constraint("Horizontal", 7, 2, 8, 2),
    Sketcher.Constraint("Horizontal", 6, 2, 9, 2),
    Sketcher.Constraint("Horizontal", 11, 2, 12, 2),
    Sketcher.Constraint("Horizontal", 10, 2, 13, 2),
    Sketcher.Constraint("Horizontal", 15, 2, 16, 2),
    Sketcher.Constraint("Horizontal", 14, 2, 17, 2),
    Sketcher.Constraint("Horizontal", 19, 2, 20, 2),
    Sketcher.Constraint("Horizontal", 18, 2, 21, 2),
    Sketcher.Constraint("Horizontal", 23, 2, 24, 2),
    Sketcher.Constraint("Horizontal", 22, 2, 25, 2),
    Sketcher.Constraint("Horizontal", 27, 2, 28, 2),
    Sketcher.Constraint("Horizontal", 26, 2, 29, 2),
    Sketcher.Constraint("Equal", 2, 4),
    Sketcher.Constraint("Equal", 6, 8),
    Sketcher.Constraint("Equal", 10, 12),
    Sketcher.Constraint("Equal", 14, 16),
    Sketcher.Constraint("Equal", 18, 20),
    Sketcher.Constraint("Equal", 22, 24),
    Sketcher.Constraint("Equal", 26, 28),
    Sketcher.Constraint("Equal", 30, 1),
    Sketcher.Constraint("DistanceX", 0, 2, 0, 1, 0.5),
    Sketcher.Constraint("DistanceY", -1, 1, 0, 2, 4.6),
    Sketcher.Constraint("DistanceX", 16, 2, 4, 2, 12.7),
    Sketcher.Constraint("DistanceX", 0, 2, -1, 1, 30.75),
    Sketcher.Constraint("DistanceX", 4, 2, -1, 1, 28.21),
    Sketcher.Constraint("DistanceX", 8, 2, -1, 1, 25.67),
    Sketcher.Constraint("DistanceX", 12, 2, -1, 1, 23.13),
    Sketcher.Constraint("DistanceX", 20, 2, -1, 1, 38.37),
    Sketcher.Constraint("DistanceX", 24, 2, -1, 1, 35.83),
    Sketcher.Constraint("DistanceX", 28, 2, -1, 1, 33.29),
])
pad7 = body.newObject("PartDesign::Pad", "Pad006")
pad7.Profile = sketch9
pad7.Length = 5

# Sketch on XY plane
sketch10 = body.newObject("Sketcher::SketchObject", "Sketch009")
sketch10.AttachmentSupport = (doc.getObject("XY_Plane"), [""])
sketch10.MapMode = "FlatFace"
sketch10.AttachmentOffset = App.Placement(Vector(0, 0, 1.6), App.Rotation())
sketch10.addGeometry([
    Part.LineSegment(Vector(46.88, 73.6, 0), Vector(43.88, 73.6, 0)),  # 0
    Part.LineSegment(Vector(43.88, 73.6, 0), Vector(43.88, 44.4, 0)),  # 1
    Part.LineSegment(Vector(43.88, 44.4, 0), Vector(72.38, 44.4, 0)),  # 2
    Part.LineSegment(Vector(72.38, 44.4, 0), Vector(72.38, 73.6, 0)),  # 3
    Part.LineSegment(Vector(72.38, 73.6, 0), Vector(69.38, 73.6, 0)),  # 4
    Part.ArcOfCircle(Part.Circle(Vector(58.13, 78.789062, 0), Vector(0, 0, 1), 12.389062), math.radians(-155.238486), math.radians(-24.761514)),  # 5
], False)
sketch10.addConstraint([
    Sketcher.Constraint("Coincident", 0, 2, 1, 1),
    Sketcher.Constraint("Coincident", 1, 2, 2, 1),
    Sketcher.Constraint("Coincident", 2, 2, 3, 1),
    Sketcher.Constraint("Coincident", 3, 2, 4, 1),
    Sketcher.Constraint("Coincident", 4, 2, 5, 2),
    Sketcher.Constraint("Coincident", 5, 1, 0, 1),
    Sketcher.Constraint("Horizontal", 0),
    Sketcher.Constraint("Vertical", 1),
    Sketcher.Constraint("Horizontal", 2),
    Sketcher.Constraint("Vertical", 3),
    Sketcher.Constraint("Horizontal", 4),
    Sketcher.Constraint("Horizontal", 0, 2, 3, 2),
    Sketcher.Constraint("Equal", 0, 4),
    Sketcher.Constraint("DistanceX", 0, 2, 0, 1, 3.0),
    Sketcher.Constraint("DistanceX", 2, 1, 2, 2, 28.5),
    Sketcher.Constraint("DistanceY", 1, 2, 1, 1, 29.2),
    Sketcher.Constraint("DistanceY", -1, 1, 0, 2, 73.6),
    Sketcher.Constraint("DistanceX", -1, 1, 5, 3, 58.13),
    Sketcher.Constraint("Radius", 5, 12.389062),
])
pad8 = body.newObject("PartDesign::Pad", "Pad007")
pad8.Profile = sketch10
pad8.Length = 3

# Sketch on XZ plane
sketch11 = body.newObject("Sketcher::SketchObject", "Sketch010")
sketch11.AttachmentSupport = (doc.getObject("XZ_Plane"), [""])
sketch11.MapMode = "FlatFace"
sketch11.AttachmentOffset = App.Placement(Vector(0, 0, -73.6), App.Rotation())
sketch11.addGeometry([
    Part.LineSegment(Vector(44.38, 1.6, 0), Vector(44.38, 4.1, 0)),
    Part.LineSegment(Vector(44.38, 4.1, 0), Vector(71.88, 4.1, 0)),
    Part.LineSegment(Vector(71.88, 4.1, 0), Vector(71.88, 1.6, 0)),
    Part.LineSegment(Vector(71.88, 1.6, 0), Vector(44.38, 1.6, 0)),
], False)
sketch11.addConstraint([
    Sketcher.Constraint("Coincident", 0, 2, 1, 1),
    Sketcher.Constraint("Coincident", 1, 2, 2, 1),
    Sketcher.Constraint("Coincident", 2, 2, 3, 1),
    Sketcher.Constraint("Coincident", 3, 2, 0, 1),
    Sketcher.Constraint("Vertical", 0),
    Sketcher.Constraint("Horizontal", 1),
    Sketcher.Constraint("Vertical", 2),
    Sketcher.Constraint("Horizontal", 3),
    Sketcher.Constraint("DistanceX", 1, 1, 1, 2, 27.5),
    Sketcher.Constraint("DistanceY", 0, 1, 0, 2, 2.5),
    Sketcher.Constraint("DistanceY", -1, 1, 0, 2, 4.1),
    Sketcher.Constraint("DistanceX", -1, 1, 0, 2, 44.38),
])
pocket3 = body.newObject("PartDesign::Pocket", "Pocket002")
pocket3.Profile = sketch11
pocket3.Length = 25
pocket3.Reversed = True
body2 = doc.addObject("PartDesign::Body", "Body001")

# Sketch on XY plane
sketch12 = body2.newObject("Sketcher::SketchObject", "Sketch011")
sketch12.AttachmentSupport = (doc.getObject("XY_Plane001"), [""])
sketch12.MapMode = "FlatFace"
sketch12.AttachmentOffset = App.Placement(Vector(0, 0, -6.9), App.Rotation())
sketch12.addGeometry([
    Part.LineSegment(Vector(118.27, 72.27, 0), Vector(118.27, -72.13, 0)),  # 0
    Part.LineSegment(Vector(118.27, -72.13, 0), Vector(-118.13, -72.13, 0)),  # 1
    Part.LineSegment(Vector(-118.13, -72.13, 0), Vector(-118.13, 72.27, 0)),  # 2
    Part.LineSegment(Vector(-118.13, 72.27, 0), Vector(118.27, 72.27, 0)),  # 3
    Part.LineSegment(Vector(-111.87, -63.92, 0), Vector(114.03, -63.92, 0)),  # 4
    Part.LineSegment(Vector(114.03, -63.92, 0), Vector(114.03, 63.88, 0)),  # 5
    Part.LineSegment(Vector(114.03, 63.88, 0), Vector(-111.87, 63.88, 0)),  # 6
    Part.LineSegment(Vector(-111.87, 63.88, 0), Vector(-111.87, -63.92, 0)),  # 7
], False)
sketch12.addConstraint([
    Sketcher.Constraint("Coincident", 0, 2, 1, 1),
    Sketcher.Constraint("Coincident", 1, 2, 2, 1),
    Sketcher.Constraint("Coincident", 2, 2, 3, 1),
    Sketcher.Constraint("Coincident", 3, 2, 0, 1),
    Sketcher.Constraint("Coincident", 4, 2, 5, 1),
    Sketcher.Constraint("Coincident", 5, 2, 6, 1),
    Sketcher.Constraint("Coincident", 6, 2, 7, 1),
    Sketcher.Constraint("Coincident", 7, 2, 4, 1),
    Sketcher.Constraint("Vertical", 0),
    Sketcher.Constraint("Horizontal", 1),
    Sketcher.Constraint("Vertical", 2),
    Sketcher.Constraint("Horizontal", 3),
    Sketcher.Constraint("Horizontal", 4),
    Sketcher.Constraint("Vertical", 5),
    Sketcher.Constraint("Horizontal", 6),
    Sketcher.Constraint("Vertical", 7),
    Sketcher.Constraint("DistanceX", 1, 2, 1, 1, 236.4),
    Sketcher.Constraint("DistanceX", 4, 1, 4, 2, 225.9),
    Sketcher.Constraint("DistanceY", 0, 2, 0, 1, 144.4),
    Sketcher.Constraint("DistanceY", 5, 1, 5, 2, 127.8),
    Sketcher.Constraint("DistanceX", -1, 1, 0, 2, 118.27),
    Sketcher.Constraint("DistanceY", 0, 2, -1, 1, 72.13),
    Sketcher.Constraint("DistanceX", -1, 1, 4, 2, 114.03),
    Sketcher.Constraint("DistanceY", 4, 2, -1, 1, 63.92),
])
pad9 = body2.newObject("PartDesign::Pad", "Pad008")
pad9.Profile = sketch12
pad9.Length = 1.1
pad9.Reversed = True

doc.recompute()
